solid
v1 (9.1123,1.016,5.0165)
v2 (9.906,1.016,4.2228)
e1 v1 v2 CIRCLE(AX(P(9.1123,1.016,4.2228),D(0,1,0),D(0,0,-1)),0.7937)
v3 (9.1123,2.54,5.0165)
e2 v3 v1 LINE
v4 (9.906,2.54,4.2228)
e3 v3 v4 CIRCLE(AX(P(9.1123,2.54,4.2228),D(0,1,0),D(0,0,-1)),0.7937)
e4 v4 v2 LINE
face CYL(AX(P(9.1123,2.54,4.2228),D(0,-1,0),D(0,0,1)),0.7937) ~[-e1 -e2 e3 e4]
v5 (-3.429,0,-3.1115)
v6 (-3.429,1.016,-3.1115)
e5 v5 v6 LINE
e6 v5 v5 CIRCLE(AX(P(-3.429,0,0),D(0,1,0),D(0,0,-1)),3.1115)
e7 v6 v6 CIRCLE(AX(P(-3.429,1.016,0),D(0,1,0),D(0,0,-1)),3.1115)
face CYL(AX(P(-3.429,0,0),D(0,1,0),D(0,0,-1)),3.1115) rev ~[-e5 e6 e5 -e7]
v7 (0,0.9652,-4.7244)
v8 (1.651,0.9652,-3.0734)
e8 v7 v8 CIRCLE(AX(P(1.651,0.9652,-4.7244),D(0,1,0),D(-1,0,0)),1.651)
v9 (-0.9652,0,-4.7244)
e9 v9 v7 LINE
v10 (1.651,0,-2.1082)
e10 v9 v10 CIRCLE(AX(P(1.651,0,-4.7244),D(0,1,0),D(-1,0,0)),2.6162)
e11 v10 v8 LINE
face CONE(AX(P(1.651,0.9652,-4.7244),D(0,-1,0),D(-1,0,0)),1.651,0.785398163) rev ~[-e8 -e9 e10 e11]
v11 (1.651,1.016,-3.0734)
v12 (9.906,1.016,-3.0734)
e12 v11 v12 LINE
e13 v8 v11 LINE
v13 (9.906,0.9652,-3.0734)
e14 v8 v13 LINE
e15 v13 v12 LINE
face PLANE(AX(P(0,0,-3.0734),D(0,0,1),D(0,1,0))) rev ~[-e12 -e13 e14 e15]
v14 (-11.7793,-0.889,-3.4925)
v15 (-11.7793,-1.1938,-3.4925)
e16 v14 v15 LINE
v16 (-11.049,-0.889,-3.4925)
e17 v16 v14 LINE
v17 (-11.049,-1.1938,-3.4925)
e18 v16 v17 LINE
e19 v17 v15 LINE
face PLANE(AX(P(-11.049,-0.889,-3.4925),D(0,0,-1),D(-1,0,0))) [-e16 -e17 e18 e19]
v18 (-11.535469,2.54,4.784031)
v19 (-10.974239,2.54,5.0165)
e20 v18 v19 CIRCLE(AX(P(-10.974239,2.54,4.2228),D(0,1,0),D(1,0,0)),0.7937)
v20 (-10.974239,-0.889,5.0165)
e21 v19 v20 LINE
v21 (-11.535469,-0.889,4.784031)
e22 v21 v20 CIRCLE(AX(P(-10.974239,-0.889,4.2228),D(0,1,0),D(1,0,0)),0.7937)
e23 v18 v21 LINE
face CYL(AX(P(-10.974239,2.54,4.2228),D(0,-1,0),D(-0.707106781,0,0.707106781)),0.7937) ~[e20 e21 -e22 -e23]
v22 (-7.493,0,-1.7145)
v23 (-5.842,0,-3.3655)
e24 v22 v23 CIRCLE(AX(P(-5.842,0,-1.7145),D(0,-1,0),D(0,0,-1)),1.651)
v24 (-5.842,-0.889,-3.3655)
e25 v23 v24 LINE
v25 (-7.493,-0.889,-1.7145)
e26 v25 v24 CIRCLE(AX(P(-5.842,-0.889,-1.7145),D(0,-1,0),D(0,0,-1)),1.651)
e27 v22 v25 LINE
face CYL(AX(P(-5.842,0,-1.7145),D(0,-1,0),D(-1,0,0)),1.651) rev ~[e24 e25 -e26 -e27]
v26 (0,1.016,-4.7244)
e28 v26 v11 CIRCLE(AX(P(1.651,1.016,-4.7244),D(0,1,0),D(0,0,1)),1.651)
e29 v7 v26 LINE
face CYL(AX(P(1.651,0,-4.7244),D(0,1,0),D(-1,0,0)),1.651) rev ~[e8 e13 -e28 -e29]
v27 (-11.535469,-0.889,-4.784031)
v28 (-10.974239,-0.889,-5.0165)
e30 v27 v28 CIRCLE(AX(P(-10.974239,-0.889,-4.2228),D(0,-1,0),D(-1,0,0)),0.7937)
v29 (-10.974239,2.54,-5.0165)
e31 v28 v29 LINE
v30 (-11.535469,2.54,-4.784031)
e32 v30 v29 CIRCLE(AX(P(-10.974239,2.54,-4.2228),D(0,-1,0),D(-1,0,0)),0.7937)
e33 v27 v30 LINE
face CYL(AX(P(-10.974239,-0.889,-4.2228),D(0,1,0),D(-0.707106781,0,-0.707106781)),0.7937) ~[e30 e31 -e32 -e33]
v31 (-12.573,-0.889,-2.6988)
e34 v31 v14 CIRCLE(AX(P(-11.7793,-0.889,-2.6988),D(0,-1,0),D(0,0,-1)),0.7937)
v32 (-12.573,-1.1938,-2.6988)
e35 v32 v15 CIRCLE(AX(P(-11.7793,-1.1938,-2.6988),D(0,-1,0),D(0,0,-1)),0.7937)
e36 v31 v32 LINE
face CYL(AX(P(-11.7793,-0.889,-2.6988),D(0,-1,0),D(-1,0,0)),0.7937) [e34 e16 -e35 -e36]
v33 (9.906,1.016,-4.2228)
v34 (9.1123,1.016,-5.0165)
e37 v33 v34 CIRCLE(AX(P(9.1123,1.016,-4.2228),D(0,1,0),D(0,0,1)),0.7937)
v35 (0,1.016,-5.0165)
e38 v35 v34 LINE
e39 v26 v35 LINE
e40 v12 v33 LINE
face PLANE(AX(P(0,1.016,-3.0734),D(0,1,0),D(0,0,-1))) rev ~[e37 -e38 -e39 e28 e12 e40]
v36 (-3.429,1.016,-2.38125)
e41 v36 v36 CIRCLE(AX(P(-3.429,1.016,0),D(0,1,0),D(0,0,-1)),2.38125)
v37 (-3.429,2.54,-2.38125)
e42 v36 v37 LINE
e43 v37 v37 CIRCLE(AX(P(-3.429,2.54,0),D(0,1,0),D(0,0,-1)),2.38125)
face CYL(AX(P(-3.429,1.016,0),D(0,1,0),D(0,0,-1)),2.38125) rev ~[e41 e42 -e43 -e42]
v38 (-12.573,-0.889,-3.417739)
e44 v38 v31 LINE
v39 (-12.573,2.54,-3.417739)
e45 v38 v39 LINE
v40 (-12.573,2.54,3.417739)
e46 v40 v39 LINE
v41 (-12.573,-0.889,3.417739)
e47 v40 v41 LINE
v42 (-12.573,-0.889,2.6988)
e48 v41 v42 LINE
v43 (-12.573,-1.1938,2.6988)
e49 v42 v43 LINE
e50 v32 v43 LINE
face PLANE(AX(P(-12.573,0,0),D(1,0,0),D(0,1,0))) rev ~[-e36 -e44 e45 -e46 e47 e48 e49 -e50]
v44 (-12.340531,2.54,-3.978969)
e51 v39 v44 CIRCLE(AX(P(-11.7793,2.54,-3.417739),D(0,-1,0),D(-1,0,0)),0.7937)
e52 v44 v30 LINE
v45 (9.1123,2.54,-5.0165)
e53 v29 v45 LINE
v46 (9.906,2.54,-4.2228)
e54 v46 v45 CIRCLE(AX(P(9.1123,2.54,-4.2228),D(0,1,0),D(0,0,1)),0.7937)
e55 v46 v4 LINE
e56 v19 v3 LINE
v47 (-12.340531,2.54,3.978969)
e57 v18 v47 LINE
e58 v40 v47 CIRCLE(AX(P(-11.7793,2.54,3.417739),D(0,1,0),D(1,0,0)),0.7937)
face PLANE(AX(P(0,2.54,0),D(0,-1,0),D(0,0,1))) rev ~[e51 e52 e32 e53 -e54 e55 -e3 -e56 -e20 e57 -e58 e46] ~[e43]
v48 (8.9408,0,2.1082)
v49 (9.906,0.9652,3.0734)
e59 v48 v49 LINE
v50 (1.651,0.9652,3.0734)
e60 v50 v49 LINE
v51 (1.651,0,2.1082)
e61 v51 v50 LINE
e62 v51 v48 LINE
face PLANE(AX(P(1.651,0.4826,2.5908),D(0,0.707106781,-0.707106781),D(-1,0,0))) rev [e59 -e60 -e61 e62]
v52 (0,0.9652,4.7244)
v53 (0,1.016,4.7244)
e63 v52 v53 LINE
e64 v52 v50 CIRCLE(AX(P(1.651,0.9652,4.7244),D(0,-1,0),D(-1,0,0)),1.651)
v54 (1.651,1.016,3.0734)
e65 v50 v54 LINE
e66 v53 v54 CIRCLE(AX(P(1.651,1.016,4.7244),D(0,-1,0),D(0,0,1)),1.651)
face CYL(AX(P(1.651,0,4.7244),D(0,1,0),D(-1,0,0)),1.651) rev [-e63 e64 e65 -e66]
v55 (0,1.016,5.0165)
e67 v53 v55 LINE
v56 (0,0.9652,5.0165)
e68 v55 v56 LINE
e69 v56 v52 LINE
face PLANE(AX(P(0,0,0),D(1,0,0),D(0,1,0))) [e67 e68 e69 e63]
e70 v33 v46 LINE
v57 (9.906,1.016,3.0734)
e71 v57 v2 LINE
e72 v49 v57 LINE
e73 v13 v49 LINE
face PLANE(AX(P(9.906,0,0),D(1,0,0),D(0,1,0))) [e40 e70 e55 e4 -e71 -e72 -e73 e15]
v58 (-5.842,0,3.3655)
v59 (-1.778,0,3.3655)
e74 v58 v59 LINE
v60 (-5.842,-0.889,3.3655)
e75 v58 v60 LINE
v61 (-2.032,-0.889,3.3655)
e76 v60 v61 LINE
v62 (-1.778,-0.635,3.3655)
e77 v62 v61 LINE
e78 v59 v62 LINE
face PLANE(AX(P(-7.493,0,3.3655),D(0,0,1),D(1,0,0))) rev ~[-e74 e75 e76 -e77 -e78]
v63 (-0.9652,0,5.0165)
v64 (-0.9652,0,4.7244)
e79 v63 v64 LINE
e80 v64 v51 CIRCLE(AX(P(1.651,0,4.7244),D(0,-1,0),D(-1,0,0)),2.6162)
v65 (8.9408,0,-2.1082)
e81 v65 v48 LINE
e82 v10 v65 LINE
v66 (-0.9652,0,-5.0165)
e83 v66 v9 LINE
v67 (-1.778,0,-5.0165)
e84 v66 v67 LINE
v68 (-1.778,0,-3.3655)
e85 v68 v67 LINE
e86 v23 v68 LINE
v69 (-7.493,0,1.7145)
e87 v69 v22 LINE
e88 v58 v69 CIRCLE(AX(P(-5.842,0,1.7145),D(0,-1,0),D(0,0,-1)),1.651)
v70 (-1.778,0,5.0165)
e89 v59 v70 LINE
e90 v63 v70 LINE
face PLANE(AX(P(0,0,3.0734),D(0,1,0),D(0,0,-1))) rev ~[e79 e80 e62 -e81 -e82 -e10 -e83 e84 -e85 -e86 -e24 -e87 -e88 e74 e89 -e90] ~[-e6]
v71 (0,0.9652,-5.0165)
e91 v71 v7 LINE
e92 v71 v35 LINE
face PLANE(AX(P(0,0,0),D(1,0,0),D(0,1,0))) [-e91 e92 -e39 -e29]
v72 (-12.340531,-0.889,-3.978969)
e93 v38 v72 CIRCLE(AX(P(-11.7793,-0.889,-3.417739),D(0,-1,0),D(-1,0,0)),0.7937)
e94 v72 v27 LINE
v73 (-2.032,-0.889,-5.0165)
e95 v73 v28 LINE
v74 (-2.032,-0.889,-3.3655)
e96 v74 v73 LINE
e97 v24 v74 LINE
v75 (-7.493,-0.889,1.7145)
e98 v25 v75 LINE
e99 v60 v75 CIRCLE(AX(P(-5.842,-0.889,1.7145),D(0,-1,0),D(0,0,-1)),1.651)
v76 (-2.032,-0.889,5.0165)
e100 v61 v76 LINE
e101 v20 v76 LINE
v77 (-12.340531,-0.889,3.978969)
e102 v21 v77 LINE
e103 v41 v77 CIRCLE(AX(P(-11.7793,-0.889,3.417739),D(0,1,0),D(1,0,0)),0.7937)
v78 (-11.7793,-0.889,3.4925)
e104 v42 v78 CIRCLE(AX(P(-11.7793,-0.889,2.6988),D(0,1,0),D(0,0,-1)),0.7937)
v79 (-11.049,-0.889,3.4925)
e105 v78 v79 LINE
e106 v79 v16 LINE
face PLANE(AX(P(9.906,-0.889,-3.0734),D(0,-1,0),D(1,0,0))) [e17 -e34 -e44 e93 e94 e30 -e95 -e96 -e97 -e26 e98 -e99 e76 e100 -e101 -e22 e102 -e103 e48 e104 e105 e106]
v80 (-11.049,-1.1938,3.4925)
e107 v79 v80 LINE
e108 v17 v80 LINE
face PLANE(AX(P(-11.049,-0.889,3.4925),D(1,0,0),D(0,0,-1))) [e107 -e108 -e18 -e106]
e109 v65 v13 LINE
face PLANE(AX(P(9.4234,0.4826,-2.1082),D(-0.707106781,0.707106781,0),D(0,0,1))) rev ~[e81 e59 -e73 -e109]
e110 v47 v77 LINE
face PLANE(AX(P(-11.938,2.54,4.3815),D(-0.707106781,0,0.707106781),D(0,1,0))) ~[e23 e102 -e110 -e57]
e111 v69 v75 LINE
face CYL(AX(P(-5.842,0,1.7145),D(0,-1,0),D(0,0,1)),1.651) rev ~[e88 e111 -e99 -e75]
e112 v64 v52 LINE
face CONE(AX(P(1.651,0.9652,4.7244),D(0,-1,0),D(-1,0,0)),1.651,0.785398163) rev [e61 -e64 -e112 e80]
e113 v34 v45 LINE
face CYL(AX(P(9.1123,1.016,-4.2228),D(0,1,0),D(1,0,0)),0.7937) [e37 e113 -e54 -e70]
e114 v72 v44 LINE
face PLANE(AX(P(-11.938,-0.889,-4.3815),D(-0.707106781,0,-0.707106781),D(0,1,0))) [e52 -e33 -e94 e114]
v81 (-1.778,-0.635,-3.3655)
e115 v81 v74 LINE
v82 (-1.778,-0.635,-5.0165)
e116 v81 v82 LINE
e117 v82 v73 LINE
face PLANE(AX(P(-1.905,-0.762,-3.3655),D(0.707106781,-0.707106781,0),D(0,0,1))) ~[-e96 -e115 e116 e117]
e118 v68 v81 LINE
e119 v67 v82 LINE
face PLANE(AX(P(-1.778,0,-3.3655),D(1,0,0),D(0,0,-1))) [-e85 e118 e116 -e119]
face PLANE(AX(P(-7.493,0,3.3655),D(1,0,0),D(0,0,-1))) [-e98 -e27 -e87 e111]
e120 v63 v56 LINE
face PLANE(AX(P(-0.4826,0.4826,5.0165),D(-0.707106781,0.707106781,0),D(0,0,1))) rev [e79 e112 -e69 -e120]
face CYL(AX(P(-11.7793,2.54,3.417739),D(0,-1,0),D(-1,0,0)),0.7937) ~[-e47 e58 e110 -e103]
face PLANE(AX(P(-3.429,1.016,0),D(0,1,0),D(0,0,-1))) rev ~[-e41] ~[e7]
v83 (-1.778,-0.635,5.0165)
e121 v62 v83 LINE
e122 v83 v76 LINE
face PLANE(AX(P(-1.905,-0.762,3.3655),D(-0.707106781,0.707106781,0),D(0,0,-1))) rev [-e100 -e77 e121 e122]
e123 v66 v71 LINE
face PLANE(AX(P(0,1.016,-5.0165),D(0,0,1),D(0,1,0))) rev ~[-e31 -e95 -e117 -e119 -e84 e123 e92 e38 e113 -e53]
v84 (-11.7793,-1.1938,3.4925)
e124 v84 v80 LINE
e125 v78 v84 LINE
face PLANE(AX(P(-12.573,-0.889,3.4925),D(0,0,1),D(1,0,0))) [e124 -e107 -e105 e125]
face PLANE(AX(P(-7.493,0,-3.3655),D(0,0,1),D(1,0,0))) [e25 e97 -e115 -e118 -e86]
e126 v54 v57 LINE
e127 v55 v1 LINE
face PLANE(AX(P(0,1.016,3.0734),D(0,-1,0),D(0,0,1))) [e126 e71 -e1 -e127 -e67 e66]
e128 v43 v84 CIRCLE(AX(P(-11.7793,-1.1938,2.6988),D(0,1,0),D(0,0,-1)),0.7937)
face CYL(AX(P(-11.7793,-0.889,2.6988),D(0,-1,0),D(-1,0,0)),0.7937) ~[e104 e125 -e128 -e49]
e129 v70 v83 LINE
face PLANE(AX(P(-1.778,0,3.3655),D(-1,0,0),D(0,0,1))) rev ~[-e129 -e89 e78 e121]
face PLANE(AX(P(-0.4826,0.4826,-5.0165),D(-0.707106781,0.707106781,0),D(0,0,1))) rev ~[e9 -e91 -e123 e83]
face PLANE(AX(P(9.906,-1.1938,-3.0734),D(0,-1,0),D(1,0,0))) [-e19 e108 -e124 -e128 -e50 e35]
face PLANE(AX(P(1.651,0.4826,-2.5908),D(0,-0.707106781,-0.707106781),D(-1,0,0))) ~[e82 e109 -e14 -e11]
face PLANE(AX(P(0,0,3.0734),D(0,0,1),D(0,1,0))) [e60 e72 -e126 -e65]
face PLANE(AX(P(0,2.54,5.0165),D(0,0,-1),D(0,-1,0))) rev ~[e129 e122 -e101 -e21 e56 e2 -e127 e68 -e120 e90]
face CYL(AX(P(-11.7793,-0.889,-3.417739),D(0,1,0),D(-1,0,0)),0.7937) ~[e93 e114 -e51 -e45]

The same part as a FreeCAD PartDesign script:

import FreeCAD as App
import Part
import Sketcher

V = App.Vector
Q = App.Units.Quantity


def edges_at(feature, points):
    """Names of the edges that pass closest to the given points."""
    edges = feature.Shape.Edges
    near = lambda p: min(range(len(edges)), key=lambda i: edges[i].distToShape(Part.Vertex(*p))[0])
    return sorted({f"Edge{near(p) + 1}" for p in points})

doc = App.newDocument("Part")
body = doc.addObject("PartDesign::Body", "Body")

# Sketch on YZ plane
sketch1 = body.newObject("Sketcher::SketchObject", "Sketch")
sketch1.AttachmentSupport = (doc.getObject("YZ_Plane"), [""])
sketch1.MapMode = "FlatFace"
sketch1.addGeometry(Part.LineSegment(V(0, 3.1, 0), V(0, -3.1, 0)), False)
sketch1.addGeometry(Part.LineSegment(V(0, -3.1, 0), V(1, -3.1, 0)), False)
sketch1.addGeometry(Part.LineSegment(V(1, -3.1, 0), V(1, -5, 0)), False)
sketch1.addGeometry(Part.LineSegment(V(1, -5, 0), V(2.5, -5, 0)), False)
sketch1.addGeometry(Part.LineSegment(V(2.5, -5, 0), V(2.5, 5, 0)), False)
sketch1.addGeometry(Part.LineSegment(V(2.5, 5, 0), V(1, 5, 0)), False)
sketch1.addGeometry(Part.LineSegment(V(1, 5, 0), V(1, 3.1, 0)), False)
sketch1.addGeometry(Part.LineSegment(V(1, 3.1, 0), V(0, 3.1, 0)), False)
sketch1.addConstraint(Sketcher.Constraint("Coincident", 0, 2, 1, 1))
sketch1.addConstraint(Sketcher.Constraint("Coincident", 1, 2, 2, 1))
sketch1.addConstraint(Sketcher.Constraint("Coincident", 2, 2, 3, 1))
sketch1.addConstraint(Sketcher.Constraint("Coincident", 3, 2, 4, 1))
sketch1.addConstraint(Sketcher.Constraint("Coincident", 4, 2, 5, 1))
sketch1.addConstraint(Sketcher.Constraint("Coincident", 5, 2, 6, 1))
sketch1.addConstraint(Sketcher.Constraint("Coincident", 6, 2, 7, 1))
sketch1.addConstraint(Sketcher.Constraint("Coincident", 7, 2, 0, 1))
sketch1.addConstraint(Sketcher.Constraint("Vertical", 0))
sketch1.addConstraint(Sketcher.Constraint("Horizontal", 1))
sketch1.addConstraint(Sketcher.Constraint("Vertical", 2))
sketch1.addConstraint(Sketcher.Constraint("Horizontal", 3))
sketch1.addConstraint(Sketcher.Constraint("Vertical", 4))
sketch1.addConstraint(Sketcher.Constraint("Horizontal", 5))
sketch1.addConstraint(Sketcher.Constraint("Vertical", 6))
sketch1.addConstraint(Sketcher.Constraint("Horizontal", 7))
sketch1.addConstraint(Sketcher.Constraint("Symmetric", 0, 2, 7, 2, -1, 1))
sketch1.addConstraint(Sketcher.Constraint("Symmetric", 2, 2, 5, 2, -1))
sketch1.addConstraint(Sketcher.Constraint("DistanceX", 1, 1, 1, 2, Q("0.04 in")))
sketch1.addConstraint(Sketcher.Constraint("DistanceX", -1, 1, 3, 2, Q("0.1 in")))
sketch1.addConstraint(Sketcher.Constraint("DistanceY", 0, 2, 0, 1, Q("0.242 in")))
sketch1.addConstraint(Sketcher.Constraint("DistanceY", 4, 1, 4, 2, Q("0.395 in")))
pad1 = body.newObject("PartDesign::Pad", "Pad")
pad1.Profile = sketch1
pad1.Length = Q("0.39 in")

# Sketch on YZ plane
sketch2 = body.newObject("Sketcher::SketchObject", "Sketch001")
sketch2.AttachmentSupport = (doc.getObject("YZ_Plane"), [""])
sketch2.MapMode = "FlatFace"
sketch2.addGeometry(Part.LineSegment(V(0, -5, 0), V(2.5, -5, 0)), False)
sketch2.addGeometry(Part.LineSegment(V(2.5, -5, 0), V(2.5, 5, 0)), False)
sketch2.addGeometry(Part.LineSegment(V(2.5, 5, 0), V(0, 5, 0)), False)
sketch2.addGeometry(Part.LineSegment(V(0, 5, 0), V(0, -5, 0)), False)
sketch2.addConstraint(Sketcher.Constraint("Coincident", 0, 2, 1, 1))
sketch2.addConstraint(Sketcher.Constraint("Coincident", 1, 2, 2, 1))
sketch2.addConstraint(Sketcher.Constraint("Coincident", 2, 2, 3, 1))
sketch2.addConstraint(Sketcher.Constraint("Coincident", 3, 2, 0, 1))
sketch2.addConstraint(Sketcher.Constraint("Horizontal", 0))
sketch2.addConstraint(Sketcher.Constraint("Vertical", 1))
sketch2.addConstraint(Sketcher.Constraint("Horizontal", 2))
sketch2.addConstraint(Sketcher.Constraint("Vertical", 3))
sketch2.addConstraint(Sketcher.Constraint("Symmetric", 2, 2, 3, 2, -1, 1))
sketch2.addConstraint(Sketcher.Constraint("DistanceX", 0, 1, 0, 2, Q("0.1 in")))
sketch2.addConstraint(Sketcher.Constraint("DistanceY", 1, 1, 1, 2, Q("0.395 in")))
pad2 = body.newObject("PartDesign::Pad", "Pad001")
pad2.Profile = sketch2
pad2.Length = Q("0.495 in")
pad2.Reversed = True

# Sketch on XZ plane
sketch3 = body.newObject("Sketcher::SketchObject", "Sketch002")
sketch3.AttachmentSupport = (doc.getObject("XZ_Plane"), [""])
sketch3.MapMode = "FlatFace"
sketch3.addGeometry(Part.Circle(V(-3.4, 0, 0), V(0, 0, 1), 2.4), False)
sketch3.addConstraint(Sketcher.Constraint("PointOnObject", 0, 3, -1))
sketch3.addConstraint(Sketcher.Constraint("Diameter", 0, Q("0.1875 in")))
sketch3.addConstraint(Sketcher.Constraint("DistanceX", 0, 3, -1, 1, Q("0.135 in")))
doc.recompute()
hole = body.newObject("PartDesign::Hole", "Hole")
hole.Profile = sketch3
hole.ThreadType = "None"
hole.Diameter = Q("0.1875 in")
hole.DepthType = "ThroughAll"
hole.HoleCutType = "Counterbore"
hole.HoleCutDiameter = Q("0.245 in")
hole.HoleCutDepth = Q("0.04 in")

# Sketch on XZ plane
sketch4 = body.newObject("Sketcher::SketchObject", "Sketch003")
sketch4.AttachmentSupport = (doc.getObject("XZ_Plane"), [""])
sketch4.MapMode = "FlatFace"
sketch4.addGeometry(Part.LineSegment(V(-12.6, 5, 0), V(-12.6, -5, 0)), False)
sketch4.addGeometry(Part.LineSegment(V(-12.6, -5, 0), V(-1.8, -5, 0)), False)
sketch4.addGeometry(Part.LineSegment(V(-1.8, -5, 0), V(-1.8, -3.4, 0)), False)
sketch4.addGeometry(Part.LineSegment(V(-1.8, -3.4, 0), V(-7.5, -3.4, 0)), False)
sketch4.addGeometry(Part.LineSegment(V(-7.5, -3.4, 0), V(-7.5, 3.4, 0)), False)
sketch4.addGeometry(Part.LineSegment(V(-7.5, 3.4, 0), V(-1.8, 3.4, 0)), False)
sketch4.addGeometry(Part.LineSegment(V(-1.8, 3.4, 0), V(-1.8, 5, 0)), False)
sketch4.addGeometry(Part.LineSegment(V(-1.8, 5, 0), V(-12.6, 5, 0)), False)
sketch4.addConstraint(Sketcher.Constraint("Coincident", 0, 2, 1, 1))
sketch4.addConstraint(Sketcher.Constraint("Coincident", 1, 2, 2, 1))
sketch4.addConstraint(Sketcher.Constraint("Coincident", 2, 2, 3, 1))
sketch4.addConstraint(Sketcher.Constraint("Coincident", 3, 2, 4, 1))
sketch4.addConstraint(Sketcher.Constraint("Coincident", 4, 2, 5, 1))
sketch4.addConstraint(Sketcher.Constraint("Coincident", 5, 2, 6, 1))
sketch4.addConstraint(Sketcher.Constraint("Coincident", 6, 2, 7, 1))
sketch4.addConstraint(Sketcher.Constraint("Coincident", 7, 2, 0, 1))
sketch4.addConstraint(Sketcher.Constraint("Vertical", 0))
sketch4.addConstraint(Sketcher.Constraint("Horizontal", 1))
sketch4.addConstraint(Sketcher.Constraint("Vertical", 2))
sketch4.addConstraint(Sketcher.Constraint("Horizontal", 3))
sketch4.addConstraint(Sketcher.Constraint("Vertical", 4))
sketch4.addConstraint(Sketcher.Constraint("Horizontal", 5))
sketch4.addConstraint(Sketcher.Constraint("Vertical", 6))
sketch4.addConstraint(Sketcher.Constraint("Horizontal", 7))
sketch4.addConstraint(Sketcher.Constraint("Symmetric", 2, 2, 5, 2, -1))
sketch4.addConstraint(Sketcher.Constraint("Equal", 2, 6))
sketch4.addConstraint(Sketcher.Constraint("DistanceX", 0, 2, 3, 2, Q("0.2 in")))
sketch4.addConstraint(Sketcher.Constraint("DistanceX", 1, 1, 1, 2, Q("0.425 in")))
sketch4.addConstraint(Sketcher.Constraint("DistanceY", 4, 1, 4, 2, Q("0.265 in")))
sketch4.addConstraint(Sketcher.Constraint("DistanceY", 0, 2, 0, 1, Q("0.395 in")))
sketch4.addConstraint(Sketcher.Constraint("DistanceX", 1, 2, -1, 1, Q("0.07 in")))
pad3 = body.newObject("PartDesign::Pad", "Pad002")
pad3.Profile = sketch4
pad3.Length = Q("0.035 in")
doc.recompute()

chamfer = body.newObject("PartDesign::Chamfer", "Chamfer")
chamfer.Base = (pad3, edges_at(pad3, [(-1.778, -0.889, 4.191), (-1.778, -0.889, -4.191)]))
chamfer.Size = Q("0.01 in")
doc.recompute()

fillet = body.newObject("PartDesign::Fillet", "Fillet")
fillet.Base = (chamfer, edges_at(chamfer, [(9.906, 1.778, 5.016), (9.906, 1.778, -5.016)]))
fillet.Radius = Q("0.031248 in")

# Sketch on XZ plane
sketch5 = body.newObject("Sketcher::SketchObject", "Sketch004")
sketch5.AttachmentSupport = (doc.getObject("XZ_Plane"), [""])
sketch5.MapMode = "FlatFace"
sketch5.AttachmentOffset = App.Placement(V(0, 0, 0.035 * 25.4), App.Rotation())
sketch5.addGeometry(Part.LineSegment(V(-12.6, 3.5, 0), V(-12.6, -3.5, 0)), False)
sketch5.addGeometry(Part.LineSegment(V(-12.6, -3.5, 0), V(-11, -3.5, 0)), False)
sketch5.addGeometry(Part.LineSegment(V(-11, -3.5, 0), V(-11, 3.5, 0)), False)
sketch5.addGeometry(Part.LineSegment(V(-11, 3.5, 0), V(-12.6, 3.5, 0)), False)
sketch5.addConstraint(Sketcher.Constraint("Coincident", 0, 2, 1, 1))
sketch5.addConstraint(Sketcher.Constraint("Coincident", 1, 2, 2, 1))
sketch5.addConstraint(Sketcher.Constraint("Coincident", 2, 2, 3, 1))
sketch5.addConstraint(Sketcher.Constraint("Coincident", 3, 2, 0, 1))
sketch5.addConstraint(Sketcher.Constraint("Vertical", 0))
sketch5.addConstraint(Sketcher.Constraint("Horizontal", 1))
sketch5.addConstraint(Sketcher.Constraint("Vertical", 2))
sketch5.addConstraint(Sketcher.Constraint("Horizontal", 3))
sketch5.addConstraint(Sketcher.Constraint("DistanceX", 1, 1, 1, 2, Q("0.06 in")))
sketch5.addConstraint(Sketcher.Constraint("DistanceY", 0, 2, 0, 1, Q("0.275 in")))
sketch5.addConstraint(Sketcher.Constraint("DistanceX", 0, 2, -1, 1, Q("0.495 in")))
sketch5.addConstraint(Sketcher.Constraint("DistanceY", 0, 2, -1, 1, Q("0.1375 in")))
pad4 = body.newObject("PartDesign::Pad", "Pad003")
pad4.Profile = sketch5
pad4.Length = Q("0.012 in")
doc.recompute()

chamfer2 = body.newObject("PartDesign::Chamfer", "Chamfer001")
chamfer2.Base = (pad4, edges_at(pad4, [(-12.573, 0.826, -5.016)]))
chamfer2.ChamferType = "Two distances"
chamfer2.Size = Q("0.05 in")
chamfer2.Size2 = Q("0.05 in")
doc.recompute()

chamfer3 = body.newObject("PartDesign::Chamfer", "Chamfer002")
chamfer3.Base = (chamfer2, edges_at(chamfer2, [(-12.573, 0.826, 5.016)]))
chamfer3.ChamferType = "Two distances"
chamfer3.Size = Q("0.05 in")
chamfer3.Size2 = Q("0.05 in")
doc.recompute()

fillet2 = body.newObject("PartDesign::Fillet", "Fillet001")
fillet2.Base = (chamfer3, edges_at(chamfer3, [(-12.573, -1.041, -3.493), (-12.573, -1.041, 3.493)]))
fillet2.Radius = Q("0.031248 in")
doc.recompute()

fillet3 = body.newObject("PartDesign::Fillet", "Fillet002")
fillet3.Base = (fillet2, edges_at(fillet2, [
    (-12.573, 0.826, 3.747),
    (-11.303, 0.826, 5.016),
    (-12.573, 0.826, -3.747),
    (-11.303, 0.826, -5.016),
]))
fillet3.Radius = Q("0.031248 in")
doc.recompute()

fillet4 = body.newObject("PartDesign::Fillet", "Fillet003")
fillet4.Base = (fillet3, edges_at(fillet3, [
    (0, 0.508, -3.073),
    (0, 0.508, 3.073),
    (-7.493, -0.445, 3.365),
    (-7.493, -0.445, -3.365),
]))
fillet4.Radius = Q("0.065 in")
doc.recompute()

chamfer4 = body.newObject("PartDesign::Chamfer", "Chamfer003")
chamfer4.Base = (fillet4, edges_at(fillet4, [
    (5.779, 0, -3.073),
    (0, 0, -4.87),
    (5.779, 0, 3.073),
    (0, 0, 4.87),
]))
chamfer4.Size = Q("0.038 in")
doc.recompute()

chamfer5 = body.newObject("PartDesign::Chamfer", "Chamfer004")
chamfer5.Base = (chamfer4, edges_at(chamfer4, [(9.906, 0, 0)]))
chamfer5.Size = Q("0.038 in")

doc.recompute()
